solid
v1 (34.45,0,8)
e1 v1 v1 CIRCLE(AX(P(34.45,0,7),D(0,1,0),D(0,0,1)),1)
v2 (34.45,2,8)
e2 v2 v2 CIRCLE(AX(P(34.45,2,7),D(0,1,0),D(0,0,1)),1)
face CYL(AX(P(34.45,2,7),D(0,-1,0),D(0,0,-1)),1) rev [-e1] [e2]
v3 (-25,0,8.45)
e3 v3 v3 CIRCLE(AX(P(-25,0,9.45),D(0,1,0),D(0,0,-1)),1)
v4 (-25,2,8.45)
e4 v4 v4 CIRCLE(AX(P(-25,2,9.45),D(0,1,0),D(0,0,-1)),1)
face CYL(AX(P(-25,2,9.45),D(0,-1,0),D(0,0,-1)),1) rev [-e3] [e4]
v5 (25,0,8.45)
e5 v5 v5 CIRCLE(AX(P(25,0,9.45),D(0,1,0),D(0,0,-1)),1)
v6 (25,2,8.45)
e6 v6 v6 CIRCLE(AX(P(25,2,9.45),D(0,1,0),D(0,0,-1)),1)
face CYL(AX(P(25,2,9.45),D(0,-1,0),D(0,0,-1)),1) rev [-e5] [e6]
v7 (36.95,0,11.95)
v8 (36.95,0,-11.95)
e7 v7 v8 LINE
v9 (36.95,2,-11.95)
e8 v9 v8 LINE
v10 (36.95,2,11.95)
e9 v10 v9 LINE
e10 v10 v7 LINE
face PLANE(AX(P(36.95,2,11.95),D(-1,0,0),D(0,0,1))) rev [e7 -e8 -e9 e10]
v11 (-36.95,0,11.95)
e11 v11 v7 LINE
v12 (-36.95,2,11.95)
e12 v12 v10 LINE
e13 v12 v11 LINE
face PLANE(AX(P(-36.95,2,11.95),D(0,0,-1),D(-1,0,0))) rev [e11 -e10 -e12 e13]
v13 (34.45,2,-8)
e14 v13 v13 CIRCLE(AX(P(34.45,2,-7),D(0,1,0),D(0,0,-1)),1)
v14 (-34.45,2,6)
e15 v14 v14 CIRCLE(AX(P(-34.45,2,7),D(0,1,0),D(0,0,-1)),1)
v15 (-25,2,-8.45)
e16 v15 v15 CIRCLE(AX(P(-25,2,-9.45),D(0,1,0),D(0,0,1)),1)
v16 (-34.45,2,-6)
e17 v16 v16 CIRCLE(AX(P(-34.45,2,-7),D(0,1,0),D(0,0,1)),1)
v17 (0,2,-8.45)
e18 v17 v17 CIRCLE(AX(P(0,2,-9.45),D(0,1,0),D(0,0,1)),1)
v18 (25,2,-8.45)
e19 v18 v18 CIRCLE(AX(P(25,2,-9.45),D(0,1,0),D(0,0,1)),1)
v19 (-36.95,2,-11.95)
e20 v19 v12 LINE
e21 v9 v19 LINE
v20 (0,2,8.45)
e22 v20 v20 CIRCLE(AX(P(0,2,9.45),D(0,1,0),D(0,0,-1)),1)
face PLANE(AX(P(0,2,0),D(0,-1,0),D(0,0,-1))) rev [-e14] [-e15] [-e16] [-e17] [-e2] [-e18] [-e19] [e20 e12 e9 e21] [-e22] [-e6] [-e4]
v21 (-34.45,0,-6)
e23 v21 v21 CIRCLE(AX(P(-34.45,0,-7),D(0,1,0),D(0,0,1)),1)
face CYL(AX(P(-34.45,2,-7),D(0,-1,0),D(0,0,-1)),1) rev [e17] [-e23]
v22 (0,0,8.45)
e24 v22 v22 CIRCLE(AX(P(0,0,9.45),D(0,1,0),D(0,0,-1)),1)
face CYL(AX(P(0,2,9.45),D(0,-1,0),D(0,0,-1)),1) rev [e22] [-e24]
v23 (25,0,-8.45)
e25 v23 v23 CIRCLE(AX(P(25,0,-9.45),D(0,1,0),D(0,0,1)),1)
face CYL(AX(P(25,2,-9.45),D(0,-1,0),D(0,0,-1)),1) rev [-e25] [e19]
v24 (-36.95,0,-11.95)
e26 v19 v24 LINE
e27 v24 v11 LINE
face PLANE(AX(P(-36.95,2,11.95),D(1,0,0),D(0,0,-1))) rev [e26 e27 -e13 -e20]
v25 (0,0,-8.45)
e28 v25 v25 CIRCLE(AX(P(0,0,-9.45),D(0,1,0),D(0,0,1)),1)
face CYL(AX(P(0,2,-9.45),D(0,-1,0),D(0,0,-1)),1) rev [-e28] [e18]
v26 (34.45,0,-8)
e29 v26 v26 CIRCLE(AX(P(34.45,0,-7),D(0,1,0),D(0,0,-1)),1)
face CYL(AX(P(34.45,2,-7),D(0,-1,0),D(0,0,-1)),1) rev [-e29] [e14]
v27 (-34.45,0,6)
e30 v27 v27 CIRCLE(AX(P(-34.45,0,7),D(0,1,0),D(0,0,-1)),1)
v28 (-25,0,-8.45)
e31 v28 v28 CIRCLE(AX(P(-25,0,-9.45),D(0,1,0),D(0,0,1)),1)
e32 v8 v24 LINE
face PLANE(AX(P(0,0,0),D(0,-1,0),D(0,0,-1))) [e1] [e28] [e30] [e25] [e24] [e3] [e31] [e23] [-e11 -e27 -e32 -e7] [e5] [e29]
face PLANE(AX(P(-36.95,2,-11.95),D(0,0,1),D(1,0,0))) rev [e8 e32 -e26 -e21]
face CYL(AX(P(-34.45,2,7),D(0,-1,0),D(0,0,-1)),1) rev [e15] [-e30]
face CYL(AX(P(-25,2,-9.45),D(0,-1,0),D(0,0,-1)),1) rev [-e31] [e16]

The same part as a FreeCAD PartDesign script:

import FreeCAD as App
import Part
import Sketcher
Q = App.Units.Quantity


def add_polygon(sketch, points):
    """Adds a closed chain of lines whose ends are joined by coincident constraints."""
    first, n = sketch.GeometryCount, len(points)
    for a, b in zip(points, points[1:] + points[:1]):
        sketch.addGeometry(Part.LineSegment(App.Vector(*a, 0), App.Vector(*b, 0)), False)
    for i in range(n):
        sketch.addConstraint(Sketcher.Constraint("Coincident", first + i, 2, first + (i + 1) % n, 1))

doc = App.newDocument("Part")
body = doc.addObject("PartDesign::Body", "Body")

# Sketch on XZ plane
sketch1 = body.newObject("Sketcher::SketchObject", "Sketch")
sketch1.AttachmentSupport = (doc.getObject("XZ_Plane"), [""])
sketch1.MapMode = "FlatFace"
add_polygon(sketch1, [(-37, -11.9), (-37, 11.9), (37, 11.9), (37, -11.9)])  # lines 0-3
sketch1.addGeometry(Part.Circle(App.Vector(-25, 9.4, 0), App.Vector(0, 0, 1), 1), False)  # 4
sketch1.addGeometry(Part.Circle(App.Vector(-34.5, 7, 0), App.Vector(0, 0, 1), 1), False)  # 5
sketch1.addGeometry(Part.Circle(App.Vector(0, 9.4, 0), App.Vector(0, 0, 1), 1), False)  # 6
sketch1.addGeometry(Part.Circle(App.Vector(25, 9.4, 0), App.Vector(0, 0, 1), 1), False)  # 7
sketch1.addGeometry(Part.Circle(App.Vector(34.5, 7, 0), App.Vector(0, 0, 1), 1), False)  # 8
sketch1.addGeometry(Part.Circle(App.Vector(-34.5, -7, 0), App.Vector(0, 0, 1), 1), False)  # 9
sketch1.addGeometry(Part.Circle(App.Vector(-25, -9.4, 0), App.Vector(0, 0, 1), 1), False)  # 10
sketch1.addGeometry(Part.Circle(App.Vector(0, -9.4, 0), App.Vector(0, 0, 1), 1), False)  # 11
sketch1.addGeometry(Part.Circle(App.Vector(34.5, -7, 0), App.Vector(0, 0, 1), 1), False)  # 12
sketch1.addGeometry(Part.Circle(App.Vector(25, -9.4, 0), App.Vector(0, 0, 1), 1), False)  # 13
sketch1.addConstraint(Sketcher.Constraint("Vertical", 0))
sketch1.addConstraint(Sketcher.Constraint("Horizontal", 1))
sketch1.addConstraint(Sketcher.Constraint("Vertical", 2))
sketch1.addConstraint(Sketcher.Constraint("Horizontal", 3))
sketch1.addConstraint(Sketcher.Constraint("Equal", 4, 5))
sketch1.addConstraint(Sketcher.Constraint("Equal", 5, 6))
sketch1.addConstraint(Sketcher.Constraint("Equal", 6, 7))
sketch1.addConstraint(Sketcher.Constraint("Equal", 7, 8))
sketch1.addConstraint(Sketcher.Constraint("Equal", 8, 9))
sketch1.addConstraint(Sketcher.Constraint("Equal", 9, 10))
sketch1.addConstraint(Sketcher.Constraint("Equal", 10, 11))
sketch1.addConstraint(Sketcher.Constraint("Equal", 11, 12))
sketch1.addConstraint(Sketcher.Constraint("Equal", 12, 13))
sketch1.addConstraint(Sketcher.Constraint("Symmetric", 8, 3, 9, 3, -1, 1))
sketch1.addConstraint(Sketcher.Constraint("Symmetric", 7, 3, 10, 3, -1, 1))
sketch1.addConstraint(Sketcher.Constraint("Symmetric", 6, 3, 11, 3, -1, 1))
sketch1.addConstraint(Sketcher.Constraint("Symmetric", 5, 3, 12, 3, -1, 1))
sketch1.addConstraint(Sketcher.Constraint("Symmetric", 4, 3, 13, 3, -1, 1))
sketch1.addConstraint(Sketcher.Constraint("Symmetric", 0, 2, 2, 2, -1, 1))
sketch1.addConstraint(Sketcher.Constraint("Symmetric", 4, 3, 7, 3, -2))
sketch1.addConstraint(Sketcher.Constraint("Symmetric", 5, 3, 8, 3, -2))
sketch1.addConstraint(Sketcher.Constraint("PointOnObject", 6, 3, -2))
sketch1.addConstraint(Sketcher.Constraint("Horizontal", 4, 3, 6, 3))
sketch1.addConstraint(Sketcher.Constraint("Diameter", 4, Q("2 mm")))
sketch1.addConstraint(Sketcher.Constraint("DistanceX", 1, 1, 1, 2, Q("73.9 mm")))
sketch1.addConstraint(Sketcher.Constraint("DistanceY", 0, 1, 0, 2, Q("23.9 mm")))
sketch1.addConstraint(Sketcher.Constraint("DistanceX", 4, 3, -1, 1, Q("25 mm")))
sketch1.addConstraint(Sketcher.Constraint("DistanceY", -1, 1, 5, 3, Q("7 mm")))
sketch1.addConstraint(Sketcher.Constraint("DistanceX", 5, 3, 8, 3, Q("68.9 mm")))
sketch1.addConstraint(Sketcher.Constraint("DistanceY", 10, 3, 4, 3, Q("18.9 mm")))
pad1 = body.newObject("PartDesign::Pad", "Pad")
pad1.Profile = sketch1
pad1.Length = 2
pad1.Reversed = True

doc.recompute()
